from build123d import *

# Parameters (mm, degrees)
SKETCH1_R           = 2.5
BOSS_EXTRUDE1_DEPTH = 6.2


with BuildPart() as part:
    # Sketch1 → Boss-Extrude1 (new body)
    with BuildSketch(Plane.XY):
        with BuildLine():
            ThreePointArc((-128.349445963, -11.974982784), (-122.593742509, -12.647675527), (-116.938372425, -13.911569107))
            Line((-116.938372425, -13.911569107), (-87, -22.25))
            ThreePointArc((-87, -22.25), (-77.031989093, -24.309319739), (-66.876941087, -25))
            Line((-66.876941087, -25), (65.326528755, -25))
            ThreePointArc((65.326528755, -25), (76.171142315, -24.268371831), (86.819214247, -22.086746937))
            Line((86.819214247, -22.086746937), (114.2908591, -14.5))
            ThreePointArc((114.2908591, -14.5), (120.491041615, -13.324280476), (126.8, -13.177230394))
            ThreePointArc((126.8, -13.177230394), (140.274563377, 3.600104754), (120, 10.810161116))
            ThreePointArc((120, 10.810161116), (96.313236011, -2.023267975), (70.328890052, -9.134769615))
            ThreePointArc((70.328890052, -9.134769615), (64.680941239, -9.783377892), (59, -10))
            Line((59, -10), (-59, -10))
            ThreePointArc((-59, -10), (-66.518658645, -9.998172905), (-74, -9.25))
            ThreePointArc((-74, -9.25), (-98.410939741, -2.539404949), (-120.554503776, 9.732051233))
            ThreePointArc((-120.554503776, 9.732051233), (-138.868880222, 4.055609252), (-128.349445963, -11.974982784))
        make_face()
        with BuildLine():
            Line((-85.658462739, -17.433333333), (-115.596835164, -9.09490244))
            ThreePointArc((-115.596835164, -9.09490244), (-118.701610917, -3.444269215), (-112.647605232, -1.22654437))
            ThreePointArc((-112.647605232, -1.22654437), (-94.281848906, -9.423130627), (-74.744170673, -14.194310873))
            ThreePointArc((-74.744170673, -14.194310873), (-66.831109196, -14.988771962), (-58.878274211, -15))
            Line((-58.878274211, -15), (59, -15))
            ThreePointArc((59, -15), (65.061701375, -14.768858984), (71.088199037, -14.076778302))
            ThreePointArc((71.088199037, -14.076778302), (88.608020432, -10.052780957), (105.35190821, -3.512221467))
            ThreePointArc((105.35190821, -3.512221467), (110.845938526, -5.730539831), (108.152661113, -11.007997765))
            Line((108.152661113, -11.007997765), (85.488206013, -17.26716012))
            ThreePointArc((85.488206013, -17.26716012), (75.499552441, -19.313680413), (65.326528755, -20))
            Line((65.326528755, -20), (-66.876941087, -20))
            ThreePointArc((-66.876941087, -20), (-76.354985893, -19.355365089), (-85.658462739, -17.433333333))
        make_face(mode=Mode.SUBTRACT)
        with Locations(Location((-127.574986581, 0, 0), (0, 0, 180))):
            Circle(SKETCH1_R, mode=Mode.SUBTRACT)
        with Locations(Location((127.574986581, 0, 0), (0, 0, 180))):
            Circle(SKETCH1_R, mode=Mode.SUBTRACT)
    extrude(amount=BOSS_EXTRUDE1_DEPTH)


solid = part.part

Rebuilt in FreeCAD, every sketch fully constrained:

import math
import FreeCAD as App
import Part
import Sketcher
Q = App.Units.Quantity

doc = App.newDocument("Part")
body = doc.addObject("PartDesign::Body", "Body")

sketch1 = body.newObject("Sketcher::SketchObject", "Sketch")
sketch1.AttachmentSupport = (doc.getObject("XY_Plane"), [""])
sketch1.MapMode = "FlatFace"
sketch1.addGeometry([
    Part.ArcOfCircle(Part.Circle(App.Vector(-132, -67.9, 0), App.Vector(0, 0, 1), 56), math.radians(74.44), math.radians(86.3)),
    Part.LineSegment(App.Vector(-116.9, -13.9, 0), App.Vector(-87, -22.2, 0)),
    Part.ArcOfCircle(Part.Circle(App.Vector(-66.9, 50, 0), App.Vector(0, 0, 1), 75), math.radians(-105.56), math.radians(-90)),
    Part.LineSegment(App.Vector(-66.9, -25, 0), App.Vector(65.3, -25, 0)),
    Part.ArcOfCircle(Part.Circle(App.Vector(65.3, 55.7, 0), App.Vector(0, 0, 1), 80.7), math.radians(-90), math.radians(-74.56)),
    Part.LineSegment(App.Vector(86.8, -22.1, 0), App.Vector(114.3, -14.5, 0)),
    Part.ArcOfCircle(Part.Circle(App.Vector(124.5, -51.6, 0), App.Vector(0, 0, 1), 38.5), math.radians(86.63), math.radians(105.44)),
    Part.ArcOfCircle(Part.Circle(App.Vector(127.6, 0, 0), App.Vector(0, 0, 1), 13.2), math.radians(-93), math.radians(125)),
    Part.ArcOfCircle(Part.Circle(App.Vector(52.5, 107.2, 0), App.Vector(0, 0, 1), 117.7), math.radians(-81), math.radians(-55)),
    Part.ArcOfCircle(Part.Circle(App.Vector(59, 64.6, 0), App.Vector(0, 0, 1), 74.6), math.radians(-90), math.radians(-81.27)),
    Part.LineSegment(App.Vector(59, -10, 0), App.Vector(-59, -10, 0)),
    Part.ArcOfCircle(Part.Circle(App.Vector(-62.7, 65.6, 0), App.Vector(0, 0, 1), 75.6), math.radians(-98.56), math.radians(-87.17)),
    Part.ArcOfCircle(Part.Circle(App.Vector(-58.1, 96.3, 0), App.Vector(0, 0, 1), 106.7), math.radians(-126), math.radians(-99)),
    Part.ArcOfCircle(Part.Circle(App.Vector(-127.6, 0, 0), App.Vector(0, 0, 1), 12), math.radians(54), math.radians(266)),
    Part.ArcOfCircle(Part.Circle(App.Vector(-66.9, 50, 0), App.Vector(0, 0, 1), 70), math.radians(-105.56), math.radians(-90)),
    Part.LineSegment(App.Vector(-85.7, -17.4, 0), App.Vector(-115.6, -9.1, 0)),
    Part.ArcOfCircle(Part.Circle(App.Vector(-114.7, -4.9, 0), App.Vector(0, 0, 1), 4.2), math.radians(61), math.radians(258)),
    Part.ArcOfCircle(Part.Circle(App.Vector(-58.1, 96.3, 0), App.Vector(0, 0, 1), 111.7), math.radians(-119), math.radians(-99)),
    Part.ArcOfCircle(Part.Circle(App.Vector(-62.7, 65.6, 0), App.Vector(0, 0, 1), 80.6), math.radians(-98.56), math.radians(-87.25)),
    Part.LineSegment(App.Vector(-58.9, -15, 0), App.Vector(59, -15, 0)),
    Part.ArcOfCircle(Part.Circle(App.Vector(59, 64.6, 0), App.Vector(0, 0, 1), 79.6), math.radians(-90), math.radians(-81.27)),
    Part.ArcOfCircle(Part.Circle(App.Vector(52.5, 107.2, 0), App.Vector(0, 0, 1), 122.7), math.radians(-81.27), math.radians(-64.46)),
    Part.ArcOfCircle(Part.Circle(App.Vector(107.1, -7.1, 0), App.Vector(0, 0, 1), 4), math.radians(-75), math.radians(116)),
    Part.LineSegment(App.Vector(108.2, -11, 0), App.Vector(85.5, -17.3, 0)),
    Part.ArcOfCircle(Part.Circle(App.Vector(65.3, 55.7, 0), App.Vector(0, 0, 1), 75.7), math.radians(-90), math.radians(-74.56)),
    Part.LineSegment(App.Vector(65.3, -20, 0), App.Vector(-66.9, -20, 0)),
    Part.Circle(App.Vector(-127.6, 0, 0), App.Vector(0, 0, 1), 2.5),
    Part.Circle(App.Vector(127.6, 0, 0), App.Vector(0, 0, 1), 2.5),
], False)
sketch1.addConstraint([
    Sketcher.Constraint("Tangent", 0, 1, 1, 1),
    Sketcher.Constraint("Tangent", 1, 2, 2, 1),
    Sketcher.Constraint("Tangent", 2, 2, 3, 1),
    Sketcher.Constraint("Tangent", 3, 2, 4, 1),
    Sketcher.Constraint("Tangent", 4, 2, 5, 1),
    Sketcher.Constraint("Tangent", 5, 2, 6, 2),
    Sketcher.Constraint("Tangent", 6, 1, 7, 1),
    Sketcher.Constraint("Tangent", 7, 2, 8, 2),
    Sketcher.Constraint("Tangent", 8, 1, 9, 2),
    Sketcher.Constraint("Tangent", 9, 1, 10, 1),
    Sketcher.Constraint("Coincident", 10, 2, 11, 2),
    Sketcher.Constraint("Tangent", 11, 1, 12, 2),
    Sketcher.Constraint("Tangent", 12, 1, 13, 1),
    Sketcher.Constraint("Tangent", 13, 2, 0, 2),
    Sketcher.Constraint("Tangent", 14, 1, 15, 1),
    Sketcher.Constraint("Coincident", 15, 2, 16, 2),
    Sketcher.Constraint("Tangent", 16, 1, 17, 1),
    Sketcher.Constraint("Tangent", 17, 2, 18, 1),
    Sketcher.Constraint("Coincident", 18, 2, 19, 1),
    Sketcher.Constraint("Tangent", 19, 2, 20, 1),
    Sketcher.Constraint("Tangent", 20, 2, 21, 1),
    Sketcher.Constraint("Tangent", 21, 2, 22, 2),
    Sketcher.Constraint("Tangent", 22, 1, 23, 1),
    Sketcher.Constraint("Tangent", 23, 2, 24, 2),
    Sketcher.Constraint("Tangent", 24, 1, 25, 1),
    Sketcher.Constraint("Tangent", 25, 2, 14, 2),
    Sketcher.Constraint("Horizontal", 3),
    Sketcher.Constraint("Horizontal", 10),
    Sketcher.Constraint("Horizontal", 19),
    Sketcher.Constraint("Horizontal", 25),
    Sketcher.Constraint("Coincident", 14, 3, 2, 3),
    Sketcher.Constraint("Coincident", 17, 3, 12, 3),
    Sketcher.Constraint("Coincident", 18, 3, 11, 3),
    Sketcher.Constraint("Coincident", 20, 3, 9, 3),
    Sketcher.Constraint("Coincident", 21, 3, 8, 3),
    Sketcher.Constraint("Coincident", 24, 3, 4, 3),
    Sketcher.Constraint("Coincident", 26, 3, 13, 3),
    Sketcher.Constraint("Coincident", 27, 3, 7, 3),
    Sketcher.Constraint("Equal", 26, 27),
    Sketcher.Constraint("Symmetric", 7, 3, 13, 3, -1, 1),
    Sketcher.Constraint("PointOnObject", 7, 3, -1),
    Sketcher.Constraint("Parallel", 1, 15),
    Sketcher.Constraint("Parallel", 5, 23),
    Sketcher.Constraint("Equal", 1, 15),
    Sketcher.Constraint("Diameter", 26, Q("5 mm")),
    Sketcher.Constraint("Radius", 0, Q("56 mm")),
    Sketcher.Constraint("Radius", 2, Q("75 mm")),
    Sketcher.Constraint("Radius", 13, Q("12 mm")),
    Sketcher.Constraint("Radius", 14, Q("70 mm")),
    Sketcher.Constraint("Radius", 6, Q("38.5 mm")),
    Sketcher.Constraint("Radius", 7, Q("13.2 mm")),
    Sketcher.Constraint("Radius", 9, Q("74.6 mm")),
    Sketcher.Constraint("Radius", 20, Q("79.6 mm")),
    Sketcher.Constraint("DistanceX", 10, 2, 10, 1, Q("118 mm")),
    Sketcher.Constraint("Radius", 16, Q("4.25 mm")),
    Sketcher.Constraint("DistanceY", -1, 1, 2, 3, Q("50 mm")),
    Sketcher.Constraint("DistanceX", -1, 1, 9, 3, Q("59 mm")),
    Sketcher.Constraint("DistanceX", 1, 2, -1, 1, Q("87 mm")),
    Sketcher.Constraint("DistanceX", -1, 1, 7, 2, Q("120 mm")),
    Sketcher.Constraint("DistanceY", 9, 1, -1, 1, Q("10 mm")),
    Sketcher.Constraint("DistanceX", 11, 1, -1, 1, Q("74 mm")),
    Sketcher.Constraint("DistanceY", 1, 2, 11, 1, Q("13 mm")),
    Sketcher.Constraint("Distance", 5, Q("28.5 mm")),
    Sketcher.Constraint("DistanceY", 5, 2, -1, 1, Q("14.5 mm")),
    Sketcher.Constraint("DistanceY", 1, 2, -1, 1, Q("22.25 mm")),
    Sketcher.Constraint("Radius", 4, Q("80.738364 mm")),
    Sketcher.Constraint("Radius", 8, Q("117.703825 mm")),
    Sketcher.Constraint("Radius", 11, Q("75.648178 mm")),
    Sketcher.Constraint("Radius", 17, Q("111.725935 mm")),
    Sketcher.Constraint("Radius", 22, Q("4.016553 mm")),
])
pad1 = body.newObject("PartDesign::Pad", "Pad")
pad1.Profile = sketch1
pad1.Length = 6.2

doc.recompute()
